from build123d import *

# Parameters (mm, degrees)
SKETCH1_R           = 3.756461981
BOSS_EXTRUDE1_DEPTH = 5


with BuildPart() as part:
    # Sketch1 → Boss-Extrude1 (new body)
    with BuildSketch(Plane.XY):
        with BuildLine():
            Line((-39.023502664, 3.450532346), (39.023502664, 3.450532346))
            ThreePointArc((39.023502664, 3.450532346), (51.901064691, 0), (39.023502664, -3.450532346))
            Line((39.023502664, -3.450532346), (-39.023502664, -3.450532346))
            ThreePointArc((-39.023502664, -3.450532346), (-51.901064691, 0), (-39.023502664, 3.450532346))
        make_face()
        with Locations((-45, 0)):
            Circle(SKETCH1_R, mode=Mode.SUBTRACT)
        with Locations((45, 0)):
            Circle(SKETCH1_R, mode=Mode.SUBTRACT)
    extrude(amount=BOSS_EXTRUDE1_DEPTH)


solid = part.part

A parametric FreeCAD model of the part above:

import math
import FreeCAD as App
import Part
import Sketcher

V = App.Vector
Q = App.Units.Quantity

doc = App.newDocument("Part")
body = doc.addObject("PartDesign::Body", "Body")

sketch1 = body.newObject("Sketcher::SketchObject", "Sketch")
sketch1.AttachmentSupport = (doc.getObject("XY_Plane"), [""])
sketch1.MapMode = "FlatFace"
sketch1.addGeometry([
    Part.LineSegment(V(39, 3.5, 0), V(-39, 3.5, 0)),
    Part.ArcOfCircle(Part.Circle(V(-45, 0, 0), V(0, 0, 1), 6.9), math.radians(30), math.radians(330)),
    Part.LineSegment(V(-39, -3.5, 0), V(39, -3.5, 0)),
    Part.ArcOfCircle(Part.Circle(V(45, 0, 0), V(0, 0, 1), 6.9), math.radians(-150), math.radians(150)),
    Part.Circle(V(45, 0, 0), V(0, 0, 1), 3.8),
    Part.Circle(V(-45, 0, 0), V(0, 0, 1), 3.8),
], False)
sketch1.addConstraint([
    Sketcher.Constraint("Coincident", 0, 2, 1, 1),
    Sketcher.Constraint("Coincident", 1, 2, 2, 1),
    Sketcher.Constraint("Coincident", 2, 2, 3, 1),
    Sketcher.Constraint("Coincident", 3, 2, 0, 1),
    Sketcher.Constraint("Horizontal", 0),
    Sketcher.Constraint("Horizontal", 2),
    Sketcher.Constraint("Coincident", 4, 3, 3, 3),
    Sketcher.Constraint("Coincident", 5, 3, 1, 3),
    Sketcher.Constraint("Equal", 1, 3),
    Sketcher.Constraint("Equal", 4, 5),
    Sketcher.Constraint("Symmetric", 1, 3, 3, 3, -1, 1),
    Sketcher.Constraint("Symmetric", 0, 2, 1, 2, -1),
    Sketcher.Constraint("DistanceX", 1, 3, -1, 1, Q("45 mm")),
    Sketcher.Constraint("Diameter", 4, Q("7.512924 mm")),
    Sketcher.Constraint("Radius", 1, Q("6.901065 mm")),
    Sketcher.Constraint("DistanceX", 0, 2, 0, 1, Q("78.047005 mm")),
])
pad1 = body.newObject("PartDesign::Pad", "Pad")
pad1.Profile = sketch1
pad1.Length = 5

doc.recompute()
